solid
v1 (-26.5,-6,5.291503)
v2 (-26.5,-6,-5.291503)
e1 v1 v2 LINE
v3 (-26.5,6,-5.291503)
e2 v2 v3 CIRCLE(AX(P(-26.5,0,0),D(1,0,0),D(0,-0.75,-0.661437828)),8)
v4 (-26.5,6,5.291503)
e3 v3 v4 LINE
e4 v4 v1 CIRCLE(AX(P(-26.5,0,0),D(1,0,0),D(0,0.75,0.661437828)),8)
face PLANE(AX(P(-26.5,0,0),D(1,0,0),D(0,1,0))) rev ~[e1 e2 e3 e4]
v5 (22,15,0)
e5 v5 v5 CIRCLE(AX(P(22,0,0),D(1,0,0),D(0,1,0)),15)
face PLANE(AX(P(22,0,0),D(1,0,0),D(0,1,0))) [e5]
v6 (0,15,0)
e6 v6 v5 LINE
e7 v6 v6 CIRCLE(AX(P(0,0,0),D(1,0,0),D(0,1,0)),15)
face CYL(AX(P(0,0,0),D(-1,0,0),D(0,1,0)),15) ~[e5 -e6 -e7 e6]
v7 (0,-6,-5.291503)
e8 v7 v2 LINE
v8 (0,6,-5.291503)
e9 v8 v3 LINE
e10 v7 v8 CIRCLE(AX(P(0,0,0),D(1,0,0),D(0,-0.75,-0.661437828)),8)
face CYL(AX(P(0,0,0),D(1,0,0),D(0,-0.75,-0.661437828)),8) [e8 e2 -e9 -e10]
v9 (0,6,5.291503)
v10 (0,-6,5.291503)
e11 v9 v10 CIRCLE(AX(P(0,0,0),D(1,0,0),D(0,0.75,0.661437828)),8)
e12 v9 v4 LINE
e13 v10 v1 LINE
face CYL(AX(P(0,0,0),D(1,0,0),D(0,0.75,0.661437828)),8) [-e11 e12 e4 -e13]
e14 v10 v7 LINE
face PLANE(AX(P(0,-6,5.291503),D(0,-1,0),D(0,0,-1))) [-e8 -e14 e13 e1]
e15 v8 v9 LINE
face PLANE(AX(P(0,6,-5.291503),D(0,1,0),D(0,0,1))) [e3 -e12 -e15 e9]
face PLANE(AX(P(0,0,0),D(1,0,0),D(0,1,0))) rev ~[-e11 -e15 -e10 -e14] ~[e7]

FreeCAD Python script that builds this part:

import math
import FreeCAD as App
import Part
import Sketcher

doc = App.newDocument("Part")
params = doc.addObject("Spreadsheet::Sheet", "Params")
for row, (alias, value) in enumerate([
    ("sketch1_diameter", "30 mm"),
    ("pad1_length", "22 mm"),
    ("sketch2_radius", "8 mm"),
    ("pad2_length", "26.5 mm"),
], start=1):
    params.set(f"A{row}", alias)
    params.set(f"B{row}", "=" + value)
    params.setAlias(f"B{row}", alias)

body = doc.addObject("PartDesign::Body", "Body")

# Sketch on YZ plane
sketch1 = doc.addObject("Sketcher::SketchObject", "Sketch")
body.addObject(sketch1)
sketch1.AttachmentSupport = (doc.YZ_Plane, [""])
sketch1.MapMode = "FlatFace"
sketch1.addGeometry(Part.Circle(App.Vector(0, 0, 0), App.Vector(0, 0, 1), 15), False)
sketch1.addConstraint(Sketcher.Constraint("Coincident", 0, 3, -1, 1))
sketch1.addConstraint(Sketcher.Constraint("Diameter", 0, 30.0))
sketch1.setExpression("Constraints[1]", "Params.sketch1_diameter")
pad1 = doc.addObject("PartDesign::Pad", "Pad")
body.addObject(pad1)
pad1.Profile = sketch1
pad1.setExpression("Length", "Params.pad1_length")

# Sketch on YZ plane
sketch2 = doc.addObject("Sketcher::SketchObject", "Sketch001")
body.addObject(sketch2)
sketch2.AttachmentSupport = (doc.YZ_Plane, [""])
sketch2.MapMode = "FlatFace"
sketch2.addGeometry(Part.LineSegment(App.Vector(-6, 5, 0), App.Vector(-6, -5, 0)), False)
sketch2.addGeometry(Part.ArcOfCircle(Part.Circle(App.Vector(0, 0, 0), App.Vector(0, 0, 1), 8), math.radians(-139), math.radians(-41)), False)
sketch2.addGeometry(Part.LineSegment(App.Vector(6, -5, 0), App.Vector(6, 5, 0)), False)
sketch2.addGeometry(Part.ArcOfCircle(Part.Circle(App.Vector(0, 0, 0), App.Vector(0, 0, 1), 8), math.radians(41), math.radians(139)), False)
sketch2.addConstraint(Sketcher.Constraint("Coincident", 0, 2, 1, 1))
sketch2.addConstraint(Sketcher.Constraint("Coincident", 1, 2, 2, 1))
sketch2.addConstraint(Sketcher.Constraint("Coincident", 2, 2, 3, 1))
sketch2.addConstraint(Sketcher.Constraint("Coincident", 3, 2, 0, 1))
sketch2.addConstraint(Sketcher.Constraint("Vertical", 0))
sketch2.addConstraint(Sketcher.Constraint("Vertical", 2))
sketch2.addConstraint(Sketcher.Constraint("Coincident", 1, 3, -1, 1))
sketch2.addConstraint(Sketcher.Constraint("Coincident", 3, 3, -1, 1))
sketch2.addConstraint(Sketcher.Constraint("Equal", 1, 3))
sketch2.addConstraint(Sketcher.Constraint("Horizontal", 0, 2, 1, 2))
sketch2.addConstraint(Sketcher.Constraint("Radius", 1, 8.0))
sketch2.addConstraint(Sketcher.Constraint("DistanceX", 0, 2, -1, 1, 6.0))
sketch2.setExpression("Constraints[10]", "Params.sketch2_radius")
pad2 = doc.addObject("PartDesign::Pad", "Pad001")
body.addObject(pad2)
pad2.Profile = sketch2
pad2.setExpression("Length", "Params.pad2_length")
pad2.Reversed = True

doc.recompute()
